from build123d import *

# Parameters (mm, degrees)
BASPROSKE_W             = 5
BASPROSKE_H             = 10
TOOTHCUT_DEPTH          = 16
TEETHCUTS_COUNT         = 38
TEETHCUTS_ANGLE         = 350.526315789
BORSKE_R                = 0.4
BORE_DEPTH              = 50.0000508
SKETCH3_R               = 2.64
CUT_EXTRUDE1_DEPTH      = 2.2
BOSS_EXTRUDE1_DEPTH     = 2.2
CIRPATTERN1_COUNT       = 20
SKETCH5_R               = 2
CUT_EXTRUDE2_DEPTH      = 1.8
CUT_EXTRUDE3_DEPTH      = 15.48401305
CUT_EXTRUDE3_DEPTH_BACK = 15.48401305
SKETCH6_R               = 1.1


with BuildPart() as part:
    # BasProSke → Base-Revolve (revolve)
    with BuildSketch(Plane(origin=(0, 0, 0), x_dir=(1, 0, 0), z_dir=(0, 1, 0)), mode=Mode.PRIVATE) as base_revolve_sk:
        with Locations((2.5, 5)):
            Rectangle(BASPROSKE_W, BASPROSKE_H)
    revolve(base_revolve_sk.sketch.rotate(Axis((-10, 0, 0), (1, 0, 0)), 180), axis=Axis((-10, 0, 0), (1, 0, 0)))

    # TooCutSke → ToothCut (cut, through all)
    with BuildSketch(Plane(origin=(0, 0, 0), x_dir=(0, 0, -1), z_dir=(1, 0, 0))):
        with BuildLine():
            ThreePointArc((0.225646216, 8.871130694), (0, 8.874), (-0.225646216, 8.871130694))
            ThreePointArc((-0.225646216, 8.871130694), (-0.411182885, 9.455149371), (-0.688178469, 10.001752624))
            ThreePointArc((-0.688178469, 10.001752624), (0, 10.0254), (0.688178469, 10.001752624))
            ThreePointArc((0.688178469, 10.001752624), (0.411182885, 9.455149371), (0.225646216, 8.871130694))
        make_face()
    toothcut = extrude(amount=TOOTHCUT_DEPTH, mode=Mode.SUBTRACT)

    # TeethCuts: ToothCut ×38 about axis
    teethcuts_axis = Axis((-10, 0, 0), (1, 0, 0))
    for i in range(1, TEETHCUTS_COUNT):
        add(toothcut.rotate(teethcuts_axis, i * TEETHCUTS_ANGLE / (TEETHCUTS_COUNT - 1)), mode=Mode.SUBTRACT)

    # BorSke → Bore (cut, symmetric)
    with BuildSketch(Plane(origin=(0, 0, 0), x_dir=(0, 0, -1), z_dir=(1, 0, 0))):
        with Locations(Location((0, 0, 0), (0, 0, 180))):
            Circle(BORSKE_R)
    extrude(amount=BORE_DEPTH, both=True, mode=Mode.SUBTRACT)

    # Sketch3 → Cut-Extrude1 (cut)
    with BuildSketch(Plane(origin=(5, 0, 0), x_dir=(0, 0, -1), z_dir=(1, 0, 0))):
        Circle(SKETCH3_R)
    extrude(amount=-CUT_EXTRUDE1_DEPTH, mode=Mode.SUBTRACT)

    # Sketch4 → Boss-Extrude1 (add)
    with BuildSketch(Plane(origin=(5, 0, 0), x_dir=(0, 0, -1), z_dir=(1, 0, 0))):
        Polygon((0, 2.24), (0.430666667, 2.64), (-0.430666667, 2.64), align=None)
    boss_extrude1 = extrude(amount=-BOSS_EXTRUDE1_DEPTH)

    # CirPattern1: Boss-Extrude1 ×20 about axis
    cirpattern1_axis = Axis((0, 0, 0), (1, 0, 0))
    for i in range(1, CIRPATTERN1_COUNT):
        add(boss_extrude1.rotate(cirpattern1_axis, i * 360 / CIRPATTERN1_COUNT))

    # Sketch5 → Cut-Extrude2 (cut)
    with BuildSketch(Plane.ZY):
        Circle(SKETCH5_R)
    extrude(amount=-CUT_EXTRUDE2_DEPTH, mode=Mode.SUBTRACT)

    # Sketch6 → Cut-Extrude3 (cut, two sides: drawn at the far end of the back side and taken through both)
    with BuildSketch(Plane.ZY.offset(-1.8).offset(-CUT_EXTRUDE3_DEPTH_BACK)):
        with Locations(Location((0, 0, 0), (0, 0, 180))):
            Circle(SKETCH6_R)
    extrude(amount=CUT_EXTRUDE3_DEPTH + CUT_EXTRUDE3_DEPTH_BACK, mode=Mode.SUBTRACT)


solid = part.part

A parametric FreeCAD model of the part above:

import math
import FreeCAD as App
import Part
import Sketcher
from FreeCAD import Vector


def add_polygon(sketch, points):
    """Adds a closed chain of lines whose ends are joined by coincident constraints."""
    first, n = sketch.GeometryCount, len(points)
    for a, b in zip(points, points[1:] + points[:1]):
        sketch.addGeometry(Part.LineSegment(App.Vector(*a, 0), App.Vector(*b, 0)), False)
    for i in range(n):
        sketch.addConstraint(Sketcher.Constraint("Coincident", first + i, 2, first + (i + 1) % n, 1))

doc = App.newDocument("Part")
body = doc.addObject("PartDesign::Body", "Body")

# Sketch on XZ plane
sketch1 = body.newObject("Sketcher::SketchObject", "Sketch")
sketch1.AttachmentSupport = (doc.getObject("XZ_Plane"), [""])
sketch1.MapMode = "FlatFace"
add_polygon(sketch1, [(0, -10), (0, 0), (5, 0), (5, -10)])  # lines 0-3
sketch1.addConstraint([
    Sketcher.Constraint("Vertical", 0),
    Sketcher.Constraint("Horizontal", 1),
    Sketcher.Constraint("Vertical", 2),
    Sketcher.Constraint("Horizontal", 3),
    Sketcher.Constraint("Coincident", 0, 2, -1, 1),
    Sketcher.Constraint("DistanceX", 1, 1, 1, 2, 5.0),
    Sketcher.Constraint("DistanceY", 0, 1, 0, 2, 10.0),
])
revolution = body.newObject("PartDesign::Revolution", "Revolution")
revolution.Profile = sketch1
revolution.ReferenceAxis = (sketch1, ["H_Axis"])
revolution.Angle = 360

# Sketch on YZ plane
sketch2 = body.newObject("Sketcher::SketchObject", "Sketch001")
sketch2.AttachmentSupport = (doc.getObject("YZ_Plane"), [""])
sketch2.MapMode = "FlatFace"
sketch2.addGeometry([
    Part.ArcOfCircle(Part.Circle(Vector(0, 0, 0), Vector(0, 0, 1), 8.87), math.radians(-1.46), math.radians(1.46)),
    Part.ArcOfCircle(Part.Circle(Vector(8.02, -3.93, 0), Vector(0, 0, 1), 3.8), math.radians(58.5), math.radians(77)),
    Part.ArcOfCircle(Part.Circle(Vector(0, 0, 0), Vector(0, 0, 1), 10.03), math.radians(-3.94), math.radians(3.94)),
    Part.ArcOfCircle(Part.Circle(Vector(8.02, 3.93, 0), Vector(0, 0, 1), 3.8), math.radians(-77), math.radians(-58.5)),
], False)
sketch2.addConstraint([
    Sketcher.Constraint("Coincident", 0, 1, 1, 2),
    Sketcher.Constraint("Coincident", 1, 1, 2, 1),
    Sketcher.Constraint("Coincident", 2, 2, 3, 2),
    Sketcher.Constraint("Coincident", 3, 1, 0, 2),
    Sketcher.Constraint("Coincident", 0, 3, -1, 1),
    Sketcher.Constraint("Coincident", 2, 3, -1, 1),
    Sketcher.Constraint("Equal", 1, 3),
    Sketcher.Constraint("Symmetric", 1, 3, 3, 3, -1),
    Sketcher.Constraint("Radius", 1, 3.8),
    Sketcher.Constraint("Radius", 0, 8.874001),
    Sketcher.Constraint("Radius", 2, 10.0254),
    Sketcher.Constraint("DistanceX", 1, 3, 0, 1, 0.8548),
    Sketcher.Constraint("DistanceY", 0, 1, 3, 3, 4.153902),
])
pocket1 = body.newObject("PartDesign::Pocket", "Pocket")
pocket1.Profile = sketch2
pocket1.Type = "ThroughAll"
pocket1.Reversed = True
doc.recompute()

polarpattern = body.newObject("PartDesign::PolarPattern", "PolarPattern")
polarpattern.Originals = [pocket1]
polarpattern.Axis = (doc.getObject("X_Axis"), [""])
polarpattern.Angle = 360
polarpattern.Occurrences = 38
body.Tip = polarpattern

# Sketch on YZ plane
sketch3 = body.newObject("Sketcher::SketchObject", "Sketch002")
sketch3.AttachmentSupport = (doc.getObject("YZ_Plane"), [""])
sketch3.MapMode = "FlatFace"
sketch3.addGeometry(Part.Circle(Vector(0, 0, 0), Vector(0, 0, 1), 0.4), False)
sketch3.addConstraint([
    Sketcher.Constraint("Coincident", 0, 3, -1, 1),
    Sketcher.Constraint("Diameter", 0, 0.8),
])
pocket2 = body.newObject("PartDesign::Pocket", "Pocket001")
pocket2.Profile = sketch3
pocket2.Length = 100.000102
pocket2.Midplane = True

# Sketch on YZ plane
sketch4 = body.newObject("Sketcher::SketchObject", "Sketch003")
sketch4.AttachmentSupport = (doc.getObject("YZ_Plane"), [""])
sketch4.MapMode = "FlatFace"
sketch4.AttachmentOffset = App.Placement(Vector(0, 0, 5), App.Rotation())
sketch4.addGeometry(Part.Circle(Vector(0, 0, 0), Vector(0, 0, 1), 2.6), False)
sketch4.addConstraint([
    Sketcher.Constraint("Coincident", 0, 3, -1, 1),
    Sketcher.Constraint("Diameter", 0, 5.28),
])
pocket3 = body.newObject("PartDesign::Pocket", "Pocket002")
pocket3.Profile = sketch4
pocket3.Length = 2.2

# Sketch on YZ plane
sketch5 = body.newObject("Sketcher::SketchObject", "Sketch004")
sketch5.AttachmentSupport = (doc.getObject("YZ_Plane"), [""])
sketch5.MapMode = "FlatFace"
sketch5.AttachmentOffset = App.Placement(Vector(0, 0, 5), App.Rotation())
add_polygon(sketch5, [(2.2, 0), (2.6, -0.4), (2.6, 0.4)])  # lines 0-2
sketch5.addConstraint([
    Sketcher.Constraint("Vertical", 1),
    Sketcher.Constraint("PointOnObject", 2, 2, -1),
    Sketcher.Constraint("Equal", 0, 2),
    Sketcher.Constraint("DistanceX", 2, 2, 0, 2, 0.4),
    Sketcher.Constraint("DistanceX", -1, 1, 0, 2, 2.64),
    Sketcher.Constraint("Distance", 0, 0.58777),
])
pad1 = body.newObject("PartDesign::Pad", "Pad")
pad1.Profile = sketch5
pad1.Length = 2.2
pad1.Reversed = True
doc.recompute()

polarpattern2 = body.newObject("PartDesign::PolarPattern", "PolarPattern001")
polarpattern2.Originals = [pad1]
polarpattern2.Axis = (doc.getObject("X_Axis"), [""])
polarpattern2.Angle = 360
polarpattern2.Occurrences = 20
body.Tip = polarpattern2

# Sketch on YZ plane
sketch6 = body.newObject("Sketcher::SketchObject", "Sketch005")
sketch6.AttachmentSupport = (doc.getObject("YZ_Plane"), [""])
sketch6.MapMode = "FlatFace"
sketch6.addGeometry(Part.Circle(Vector(0, 0, 0), Vector(0, 0, 1), 2), False)
sketch6.addConstraint([
    Sketcher.Constraint("Coincident", 0, 3, -1, 1),
    Sketcher.Constraint("Diameter", 0, 4.0),
])
pocket4 = body.newObject("PartDesign::Pocket", "Pocket003")
pocket4.Profile = sketch6
pocket4.Length = 1.8
pocket4.Reversed = True

# Sketch on YZ plane
sketch7 = body.newObject("Sketcher::SketchObject", "Sketch006")
sketch7.AttachmentSupport = (doc.getObject("YZ_Plane"), [""])
sketch7.MapMode = "FlatFace"
sketch7.AttachmentOffset = App.Placement(Vector(0, 0, 1.8), App.Rotation())
sketch7.addGeometry(Part.Circle(Vector(0, 0, 0), Vector(0, 0, 1), 1.1), False)
sketch7.addConstraint([
    Sketcher.Constraint("Coincident", 0, 3, -1, 1),
    Sketcher.Constraint("Diameter", 0, 2.2),
])
pocket5 = body.newObject("PartDesign::Pocket", "Pocket004")
pocket5.Profile = sketch7
pocket5.Type = "ThroughAll"
pocket5.Midplane = True

doc.recompute()
